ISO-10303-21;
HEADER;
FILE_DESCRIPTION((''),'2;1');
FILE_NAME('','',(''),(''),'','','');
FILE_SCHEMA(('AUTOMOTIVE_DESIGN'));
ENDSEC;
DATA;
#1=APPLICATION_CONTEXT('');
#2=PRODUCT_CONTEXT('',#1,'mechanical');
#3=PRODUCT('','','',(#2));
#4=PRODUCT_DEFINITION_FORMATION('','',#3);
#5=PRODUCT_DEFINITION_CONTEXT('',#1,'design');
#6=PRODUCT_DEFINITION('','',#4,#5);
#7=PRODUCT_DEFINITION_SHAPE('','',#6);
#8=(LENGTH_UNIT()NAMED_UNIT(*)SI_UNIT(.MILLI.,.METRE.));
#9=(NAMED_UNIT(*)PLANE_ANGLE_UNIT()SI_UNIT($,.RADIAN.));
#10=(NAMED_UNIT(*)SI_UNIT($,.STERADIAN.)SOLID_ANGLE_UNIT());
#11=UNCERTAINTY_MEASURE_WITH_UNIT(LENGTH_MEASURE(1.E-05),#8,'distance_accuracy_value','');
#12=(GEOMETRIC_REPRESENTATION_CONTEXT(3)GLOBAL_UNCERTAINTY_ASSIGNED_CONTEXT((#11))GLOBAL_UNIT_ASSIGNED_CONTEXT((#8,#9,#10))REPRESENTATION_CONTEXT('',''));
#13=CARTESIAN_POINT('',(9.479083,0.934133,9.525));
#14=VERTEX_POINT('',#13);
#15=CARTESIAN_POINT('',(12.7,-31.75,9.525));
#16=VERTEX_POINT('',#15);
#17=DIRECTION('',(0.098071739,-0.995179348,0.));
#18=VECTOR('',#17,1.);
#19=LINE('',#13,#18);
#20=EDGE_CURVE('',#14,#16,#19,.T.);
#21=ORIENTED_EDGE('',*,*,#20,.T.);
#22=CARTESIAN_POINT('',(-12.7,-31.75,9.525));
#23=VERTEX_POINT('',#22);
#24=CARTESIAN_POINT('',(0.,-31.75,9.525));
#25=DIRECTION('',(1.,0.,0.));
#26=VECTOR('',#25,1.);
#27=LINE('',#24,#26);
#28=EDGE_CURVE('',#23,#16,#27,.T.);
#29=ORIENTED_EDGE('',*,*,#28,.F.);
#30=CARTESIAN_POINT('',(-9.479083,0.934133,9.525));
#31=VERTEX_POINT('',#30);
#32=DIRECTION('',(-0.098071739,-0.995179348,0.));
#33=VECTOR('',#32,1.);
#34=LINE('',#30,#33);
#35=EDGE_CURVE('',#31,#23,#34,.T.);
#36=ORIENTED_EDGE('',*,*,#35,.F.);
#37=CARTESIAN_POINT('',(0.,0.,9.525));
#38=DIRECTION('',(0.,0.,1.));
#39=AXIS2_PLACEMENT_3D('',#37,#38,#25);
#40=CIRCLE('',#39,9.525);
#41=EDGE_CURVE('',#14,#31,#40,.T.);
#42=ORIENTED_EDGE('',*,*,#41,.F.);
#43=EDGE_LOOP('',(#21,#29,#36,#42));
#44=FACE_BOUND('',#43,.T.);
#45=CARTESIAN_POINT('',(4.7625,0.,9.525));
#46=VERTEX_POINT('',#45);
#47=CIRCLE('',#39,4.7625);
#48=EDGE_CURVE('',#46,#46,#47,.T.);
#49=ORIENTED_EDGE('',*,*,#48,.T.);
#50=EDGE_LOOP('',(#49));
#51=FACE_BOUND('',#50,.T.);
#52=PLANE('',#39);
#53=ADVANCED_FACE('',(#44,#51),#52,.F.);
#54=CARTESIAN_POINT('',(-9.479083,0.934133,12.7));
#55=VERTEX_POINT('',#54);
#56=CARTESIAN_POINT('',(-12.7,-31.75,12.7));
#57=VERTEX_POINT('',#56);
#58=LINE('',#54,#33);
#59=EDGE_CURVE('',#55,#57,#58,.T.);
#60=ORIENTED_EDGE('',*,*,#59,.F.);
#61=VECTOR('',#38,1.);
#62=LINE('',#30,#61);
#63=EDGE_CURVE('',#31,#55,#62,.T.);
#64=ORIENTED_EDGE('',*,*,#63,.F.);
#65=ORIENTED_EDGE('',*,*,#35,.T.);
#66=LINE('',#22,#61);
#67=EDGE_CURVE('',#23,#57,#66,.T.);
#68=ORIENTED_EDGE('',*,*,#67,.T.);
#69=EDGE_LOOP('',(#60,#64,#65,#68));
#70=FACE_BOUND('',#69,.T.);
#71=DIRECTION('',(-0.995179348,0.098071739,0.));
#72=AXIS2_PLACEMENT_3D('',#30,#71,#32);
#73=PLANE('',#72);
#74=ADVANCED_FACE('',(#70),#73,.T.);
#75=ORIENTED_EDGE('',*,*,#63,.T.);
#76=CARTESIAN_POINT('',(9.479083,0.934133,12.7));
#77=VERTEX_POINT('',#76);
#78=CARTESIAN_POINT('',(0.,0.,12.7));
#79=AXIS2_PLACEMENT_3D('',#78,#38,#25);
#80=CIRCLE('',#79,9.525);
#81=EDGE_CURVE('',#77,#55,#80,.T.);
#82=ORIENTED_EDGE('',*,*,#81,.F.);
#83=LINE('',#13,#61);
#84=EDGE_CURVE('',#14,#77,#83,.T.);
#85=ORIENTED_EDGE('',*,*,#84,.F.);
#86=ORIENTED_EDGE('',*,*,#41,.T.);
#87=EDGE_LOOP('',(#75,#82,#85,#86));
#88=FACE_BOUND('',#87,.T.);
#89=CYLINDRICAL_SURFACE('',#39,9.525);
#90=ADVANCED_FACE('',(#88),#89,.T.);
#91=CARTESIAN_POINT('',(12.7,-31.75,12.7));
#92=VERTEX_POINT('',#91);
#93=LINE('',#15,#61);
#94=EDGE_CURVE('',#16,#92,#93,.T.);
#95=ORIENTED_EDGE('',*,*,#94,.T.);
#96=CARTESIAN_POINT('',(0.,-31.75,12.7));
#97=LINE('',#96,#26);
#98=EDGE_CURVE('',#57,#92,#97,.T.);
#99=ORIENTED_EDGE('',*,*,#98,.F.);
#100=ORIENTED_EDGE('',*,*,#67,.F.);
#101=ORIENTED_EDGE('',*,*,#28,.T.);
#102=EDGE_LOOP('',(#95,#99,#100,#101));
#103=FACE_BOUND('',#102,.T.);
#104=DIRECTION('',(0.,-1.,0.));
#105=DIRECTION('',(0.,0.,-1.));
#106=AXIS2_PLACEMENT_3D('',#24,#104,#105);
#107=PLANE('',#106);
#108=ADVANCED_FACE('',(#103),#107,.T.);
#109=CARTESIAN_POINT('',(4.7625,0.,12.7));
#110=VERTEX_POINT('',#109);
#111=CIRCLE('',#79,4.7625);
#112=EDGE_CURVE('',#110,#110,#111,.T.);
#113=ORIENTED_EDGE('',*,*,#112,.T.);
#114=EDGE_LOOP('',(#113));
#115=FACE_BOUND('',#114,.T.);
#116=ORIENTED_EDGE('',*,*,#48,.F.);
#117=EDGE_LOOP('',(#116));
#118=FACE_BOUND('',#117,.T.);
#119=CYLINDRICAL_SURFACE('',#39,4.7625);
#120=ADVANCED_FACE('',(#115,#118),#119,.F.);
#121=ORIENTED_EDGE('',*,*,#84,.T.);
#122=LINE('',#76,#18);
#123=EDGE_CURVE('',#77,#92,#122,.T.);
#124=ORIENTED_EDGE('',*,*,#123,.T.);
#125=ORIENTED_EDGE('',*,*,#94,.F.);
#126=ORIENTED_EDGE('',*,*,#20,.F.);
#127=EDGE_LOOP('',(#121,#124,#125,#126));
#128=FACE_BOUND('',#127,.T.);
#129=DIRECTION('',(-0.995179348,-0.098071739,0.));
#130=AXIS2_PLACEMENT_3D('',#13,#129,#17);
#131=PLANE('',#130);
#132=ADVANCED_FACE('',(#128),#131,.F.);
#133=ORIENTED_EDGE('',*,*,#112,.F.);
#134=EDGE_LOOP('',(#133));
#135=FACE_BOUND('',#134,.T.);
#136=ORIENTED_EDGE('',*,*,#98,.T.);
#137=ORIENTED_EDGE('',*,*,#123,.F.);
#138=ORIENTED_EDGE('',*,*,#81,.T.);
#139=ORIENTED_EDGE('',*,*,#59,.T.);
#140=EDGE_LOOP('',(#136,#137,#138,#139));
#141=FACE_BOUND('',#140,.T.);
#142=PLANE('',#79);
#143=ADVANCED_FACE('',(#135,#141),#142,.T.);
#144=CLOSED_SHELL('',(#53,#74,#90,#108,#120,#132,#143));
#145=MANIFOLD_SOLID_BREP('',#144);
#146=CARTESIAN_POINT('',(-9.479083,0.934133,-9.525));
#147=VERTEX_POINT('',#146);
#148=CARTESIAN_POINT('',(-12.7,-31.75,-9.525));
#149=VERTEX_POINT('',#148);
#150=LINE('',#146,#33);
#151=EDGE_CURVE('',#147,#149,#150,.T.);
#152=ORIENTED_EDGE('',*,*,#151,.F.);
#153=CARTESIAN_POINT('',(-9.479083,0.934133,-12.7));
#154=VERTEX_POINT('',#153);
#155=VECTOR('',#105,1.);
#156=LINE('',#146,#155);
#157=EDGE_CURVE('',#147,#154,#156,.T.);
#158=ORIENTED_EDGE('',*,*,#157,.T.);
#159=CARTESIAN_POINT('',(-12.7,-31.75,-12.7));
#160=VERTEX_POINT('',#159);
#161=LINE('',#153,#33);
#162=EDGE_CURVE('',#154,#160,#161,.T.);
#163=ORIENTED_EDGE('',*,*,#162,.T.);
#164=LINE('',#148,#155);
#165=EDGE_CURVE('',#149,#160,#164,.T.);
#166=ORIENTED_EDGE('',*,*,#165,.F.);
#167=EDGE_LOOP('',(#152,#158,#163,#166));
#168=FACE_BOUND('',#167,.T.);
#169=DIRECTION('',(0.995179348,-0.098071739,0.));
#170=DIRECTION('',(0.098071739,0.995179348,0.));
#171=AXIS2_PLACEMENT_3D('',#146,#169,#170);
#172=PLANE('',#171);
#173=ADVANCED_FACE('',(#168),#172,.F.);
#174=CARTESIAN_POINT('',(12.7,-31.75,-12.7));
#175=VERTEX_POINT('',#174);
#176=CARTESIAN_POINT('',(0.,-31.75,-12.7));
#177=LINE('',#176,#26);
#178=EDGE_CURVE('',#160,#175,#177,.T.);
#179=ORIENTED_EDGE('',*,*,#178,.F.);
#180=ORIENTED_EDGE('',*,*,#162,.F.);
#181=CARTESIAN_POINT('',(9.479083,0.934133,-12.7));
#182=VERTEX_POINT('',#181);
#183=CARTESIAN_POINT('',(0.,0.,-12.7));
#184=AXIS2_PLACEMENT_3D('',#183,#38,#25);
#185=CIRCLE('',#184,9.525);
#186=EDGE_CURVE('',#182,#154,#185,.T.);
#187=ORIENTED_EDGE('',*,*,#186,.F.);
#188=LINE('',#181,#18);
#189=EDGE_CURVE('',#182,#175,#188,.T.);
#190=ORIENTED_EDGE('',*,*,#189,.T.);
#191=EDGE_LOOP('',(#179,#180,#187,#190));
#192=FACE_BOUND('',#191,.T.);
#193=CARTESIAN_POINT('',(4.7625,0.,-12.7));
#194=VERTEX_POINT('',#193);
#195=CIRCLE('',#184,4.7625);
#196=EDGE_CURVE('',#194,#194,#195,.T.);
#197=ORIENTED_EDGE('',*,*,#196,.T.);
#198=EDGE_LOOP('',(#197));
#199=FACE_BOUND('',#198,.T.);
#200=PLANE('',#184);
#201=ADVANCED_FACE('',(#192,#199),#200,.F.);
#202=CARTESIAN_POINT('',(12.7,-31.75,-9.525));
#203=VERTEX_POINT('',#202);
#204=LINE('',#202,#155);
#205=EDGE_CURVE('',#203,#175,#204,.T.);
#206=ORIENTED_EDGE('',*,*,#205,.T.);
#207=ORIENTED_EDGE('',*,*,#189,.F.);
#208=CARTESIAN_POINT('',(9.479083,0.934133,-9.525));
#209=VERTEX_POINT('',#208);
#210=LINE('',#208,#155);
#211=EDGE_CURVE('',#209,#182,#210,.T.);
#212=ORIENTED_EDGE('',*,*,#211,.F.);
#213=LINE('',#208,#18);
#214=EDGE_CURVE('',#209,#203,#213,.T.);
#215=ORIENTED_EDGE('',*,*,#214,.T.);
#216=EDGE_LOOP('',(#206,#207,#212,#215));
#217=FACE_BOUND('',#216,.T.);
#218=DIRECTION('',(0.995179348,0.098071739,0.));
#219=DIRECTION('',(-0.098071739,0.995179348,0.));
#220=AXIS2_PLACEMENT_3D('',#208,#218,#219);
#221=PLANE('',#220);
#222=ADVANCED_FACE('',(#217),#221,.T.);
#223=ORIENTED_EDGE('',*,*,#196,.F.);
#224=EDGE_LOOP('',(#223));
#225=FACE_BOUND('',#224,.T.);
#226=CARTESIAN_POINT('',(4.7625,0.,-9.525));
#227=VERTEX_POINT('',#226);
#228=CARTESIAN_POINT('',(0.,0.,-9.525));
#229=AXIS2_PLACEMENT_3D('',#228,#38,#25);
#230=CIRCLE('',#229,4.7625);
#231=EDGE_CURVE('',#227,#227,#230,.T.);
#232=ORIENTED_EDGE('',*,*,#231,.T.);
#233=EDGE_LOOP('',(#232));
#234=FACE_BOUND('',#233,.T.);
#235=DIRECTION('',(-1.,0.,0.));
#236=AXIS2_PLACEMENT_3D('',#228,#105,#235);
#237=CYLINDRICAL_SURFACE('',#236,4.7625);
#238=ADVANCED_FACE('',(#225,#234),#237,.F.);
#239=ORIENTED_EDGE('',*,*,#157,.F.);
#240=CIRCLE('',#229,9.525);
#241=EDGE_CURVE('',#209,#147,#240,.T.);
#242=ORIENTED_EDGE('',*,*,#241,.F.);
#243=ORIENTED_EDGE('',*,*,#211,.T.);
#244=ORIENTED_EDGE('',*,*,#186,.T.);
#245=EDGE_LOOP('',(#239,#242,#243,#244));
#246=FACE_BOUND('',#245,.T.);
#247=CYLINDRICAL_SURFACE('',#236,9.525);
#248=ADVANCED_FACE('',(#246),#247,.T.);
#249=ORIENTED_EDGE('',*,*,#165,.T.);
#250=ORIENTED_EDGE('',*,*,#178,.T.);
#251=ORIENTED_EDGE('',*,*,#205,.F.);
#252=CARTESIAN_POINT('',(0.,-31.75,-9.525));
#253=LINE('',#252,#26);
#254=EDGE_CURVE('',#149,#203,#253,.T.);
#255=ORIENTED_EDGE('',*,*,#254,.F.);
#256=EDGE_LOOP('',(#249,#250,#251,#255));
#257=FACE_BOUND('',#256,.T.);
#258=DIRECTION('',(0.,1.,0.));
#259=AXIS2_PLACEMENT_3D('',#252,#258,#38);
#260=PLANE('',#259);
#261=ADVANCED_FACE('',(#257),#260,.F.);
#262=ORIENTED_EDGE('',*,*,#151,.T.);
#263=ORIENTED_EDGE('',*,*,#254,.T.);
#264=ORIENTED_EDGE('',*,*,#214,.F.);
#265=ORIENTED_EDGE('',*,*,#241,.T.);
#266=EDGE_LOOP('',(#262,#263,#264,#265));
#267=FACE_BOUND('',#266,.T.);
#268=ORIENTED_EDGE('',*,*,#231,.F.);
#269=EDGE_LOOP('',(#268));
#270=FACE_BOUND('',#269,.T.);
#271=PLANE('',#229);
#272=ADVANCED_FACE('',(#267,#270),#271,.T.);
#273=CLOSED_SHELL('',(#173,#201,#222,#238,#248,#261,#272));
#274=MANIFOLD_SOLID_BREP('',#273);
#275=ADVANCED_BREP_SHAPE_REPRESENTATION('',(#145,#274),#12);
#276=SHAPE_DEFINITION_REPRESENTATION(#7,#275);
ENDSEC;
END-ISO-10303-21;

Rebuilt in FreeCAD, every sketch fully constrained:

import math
import FreeCAD as App
import Part
import Sketcher

V = App.Vector
Q = App.Units.Quantity

doc = App.newDocument("Part")
body = doc.addObject("PartDesign::Body", "Body")

# Sketch on XY plane
sketch1 = doc.addObject("Sketcher::SketchObject", "Sketch")
body.addObject(sketch1)
sketch1.AttachmentSupport = (doc.XY_Plane, [""])
sketch1.MapMode = "FlatFace"
sketch1.AttachmentOffset = App.Placement(V(0, 0, 0.5 * 25.4), App.Rotation())
sketch1.addGeometry(Part.ArcOfCircle(Part.Circle(V(0, 0, 0), V(0, 0, 1), 9.525), math.radians(5.628143), math.radians(174.371857)), False)
sketch1.addGeometry(Part.LineSegment(V(-9.479083, 0.934133, 0), V(-12.7, -31.75, 0)), False)
sketch1.addGeometry(Part.LineSegment(V(-12.7, -31.75, 0), V(12.7, -31.75, 0)), False)
sketch1.addGeometry(Part.LineSegment(V(12.7, -31.75, 0), V(9.479083, 0.934133, 0)), False)
sketch1.addGeometry(Part.Circle(V(0, 0, 0), V(0, 0, 1), 4.7625), False)
sketch1.addConstraint(Sketcher.Constraint("Tangent", 0, 2, 1, 1))
sketch1.addConstraint(Sketcher.Constraint("Coincident", 1, 2, 2, 1))
sketch1.addConstraint(Sketcher.Constraint("Coincident", 2, 2, 3, 1))
sketch1.addConstraint(Sketcher.Constraint("Tangent", 3, 2, 0, 1))
sketch1.addConstraint(Sketcher.Constraint("Horizontal", 2))
sketch1.addConstraint(Sketcher.Constraint("Coincident", 0, 3, -1, 1))
sketch1.addConstraint(Sketcher.Constraint("Coincident", 4, 3, -1, 1))
sketch1.addConstraint(Sketcher.Constraint("Horizontal", 0, 2, 3, 2))
sketch1.addConstraint(Sketcher.Constraint("DistanceX", 2, 1, 2, 2, Q("1 in")))
sketch1.addConstraint(Sketcher.Constraint("Diameter", 4, Q("0.375 in")))
sketch1.addConstraint(Sketcher.Constraint("Radius", 0, Q("0.375 in")))
sketch1.addConstraint(Sketcher.Constraint("DistanceY", 1, 2, -1, 1, Q("1.25 in")))
pad1 = doc.addObject("PartDesign::Pad", "Pad")
body.addObject(pad1)
pad1.Profile = sketch1
pad1.Length = Q("0.125 in")
pad1.Reversed = True
body2 = doc.addObject("PartDesign::Body", "Body001")

# Sketch on XY plane
sketch2 = doc.addObject("Sketcher::SketchObject", "Sketch001")
body2.addObject(sketch2)
sketch2.AttachmentSupport = (doc.getObject("XY_Plane001"), [""])
sketch2.MapMode = "FlatFace"
sketch2.AttachmentOffset = App.Placement(V(0, 0, -0.5 * 25.4), App.Rotation())
sketch2.addGeometry(Part.ArcOfCircle(Part.Circle(V(0, 0, 0), V(0, 0, 1), 9.525), math.radians(5.628143), math.radians(174.371857)), False)
sketch2.addGeometry(Part.LineSegment(V(-9.479083, 0.934133, 0), V(-12.7, -31.75, 0)), False)
sketch2.addGeometry(Part.LineSegment(V(-12.7, -31.75, 0), V(12.7, -31.75, 0)), False)
sketch2.addGeometry(Part.LineSegment(V(12.7, -31.75, 0), V(9.479083, 0.934133, 0)), False)
sketch2.addGeometry(Part.Circle(V(0, 0, 0), V(0, 0, 1), 4.7625), False)
sketch2.addConstraint(Sketcher.Constraint("Tangent", 0, 2, 1, 1))
sketch2.addConstraint(Sketcher.Constraint("Coincident", 1, 2, 2, 1))
sketch2.addConstraint(Sketcher.Constraint("Coincident", 2, 2, 3, 1))
sketch2.addConstraint(Sketcher.Constraint("Tangent", 3, 2, 0, 1))
sketch2.addConstraint(Sketcher.Constraint("Horizontal", 2))
sketch2.addConstraint(Sketcher.Constraint("Coincident", 0, 3, -1, 1))
sketch2.addConstraint(Sketcher.Constraint("Coincident", 4, 3, -1, 1))
sketch2.addConstraint(Sketcher.Constraint("Horizontal", 0, 2, 3, 2))
sketch2.addConstraint(Sketcher.Constraint("DistanceX", 2, 1, 2, 2, Q("1 in")))
sketch2.addConstraint(Sketcher.Constraint("Diameter", 4, Q("0.375 in")))
sketch2.addConstraint(Sketcher.Constraint("Radius", 0, Q("0.375 in")))
sketch2.addConstraint(Sketcher.Constraint("DistanceY", 1, 2, -1, 1, Q("1.25 in")))
pad2 = doc.addObject("PartDesign::Pad", "Pad001")
body2.addObject(pad2)
pad2.Profile = sketch2
pad2.Length = Q("0.125 in")

doc.recompute()
